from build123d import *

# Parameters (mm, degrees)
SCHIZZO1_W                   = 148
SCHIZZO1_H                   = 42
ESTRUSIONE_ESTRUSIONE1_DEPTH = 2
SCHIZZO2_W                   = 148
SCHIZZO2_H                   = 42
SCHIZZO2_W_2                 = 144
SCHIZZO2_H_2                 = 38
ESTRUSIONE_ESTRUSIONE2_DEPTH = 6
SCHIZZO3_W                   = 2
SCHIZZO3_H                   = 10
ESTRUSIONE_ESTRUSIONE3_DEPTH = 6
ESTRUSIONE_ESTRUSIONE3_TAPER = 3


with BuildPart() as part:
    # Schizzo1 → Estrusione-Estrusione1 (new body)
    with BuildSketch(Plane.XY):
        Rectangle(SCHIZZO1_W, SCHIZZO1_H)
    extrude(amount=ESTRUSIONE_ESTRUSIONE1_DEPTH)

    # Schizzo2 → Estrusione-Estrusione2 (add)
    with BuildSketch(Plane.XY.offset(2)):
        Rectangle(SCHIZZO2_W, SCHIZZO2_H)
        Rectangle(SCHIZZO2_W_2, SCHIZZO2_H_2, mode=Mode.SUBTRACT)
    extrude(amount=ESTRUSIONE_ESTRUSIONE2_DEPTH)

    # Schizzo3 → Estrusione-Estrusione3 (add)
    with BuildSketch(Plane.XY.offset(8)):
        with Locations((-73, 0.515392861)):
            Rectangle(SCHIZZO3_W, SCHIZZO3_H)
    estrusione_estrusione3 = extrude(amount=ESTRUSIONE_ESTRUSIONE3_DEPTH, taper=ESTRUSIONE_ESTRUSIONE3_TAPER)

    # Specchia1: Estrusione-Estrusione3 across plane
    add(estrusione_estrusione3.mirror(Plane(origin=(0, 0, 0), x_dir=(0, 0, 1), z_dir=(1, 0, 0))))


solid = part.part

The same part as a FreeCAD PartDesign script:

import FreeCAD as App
import Part
import Sketcher
from FreeCAD import Vector
Q = App.Units.Quantity


def add_polygon(sketch, points):
    """Adds a closed chain of lines whose ends are joined by coincident constraints."""
    first, n = sketch.GeometryCount, len(points)
    for a, b in zip(points, points[1:] + points[:1]):
        sketch.addGeometry(Part.LineSegment(App.Vector(*a, 0), App.Vector(*b, 0)), False)
    for i in range(n):
        sketch.addConstraint(Sketcher.Constraint("Coincident", first + i, 2, first + (i + 1) % n, 1))

doc = App.newDocument("Part")
body = doc.addObject("PartDesign::Body", "Body")

# Sketch on XY plane
sketch1 = doc.addObject("Sketcher::SketchObject", "Sketch")
body.addObject(sketch1)
sketch1.AttachmentSupport = (doc.XY_Plane, [""])
sketch1.MapMode = "FlatFace"
add_polygon(sketch1, [(-74, 21), (-74, -21), (74, -21), (74, 21)])  # lines 0-3
sketch1.addConstraint([
    Sketcher.Constraint("Vertical", 0),
    Sketcher.Constraint("Horizontal", 1),
    Sketcher.Constraint("Vertical", 2),
    Sketcher.Constraint("Horizontal", 3),
    Sketcher.Constraint("Symmetric", 0, 2, 2, 2, -1, 1),
    Sketcher.Constraint("DistanceX", 1, 1, 1, 2, Q("148 mm")),
    Sketcher.Constraint("DistanceY", 0, 2, 0, 1, Q("42 mm")),
])
pad1 = doc.addObject("PartDesign::Pad", "Pad")
body.addObject(pad1)
pad1.Profile = sketch1
pad1.Length = 2

# Sketch on XY plane
sketch2 = doc.addObject("Sketcher::SketchObject", "Sketch001")
body.addObject(sketch2)
sketch2.AttachmentSupport = (doc.XY_Plane, [""])
sketch2.MapMode = "FlatFace"
sketch2.AttachmentOffset = App.Placement(Vector(0, 0, 2), App.Rotation())
add_polygon(sketch2, [(-74, 21), (-74, -21), (74, -21), (74, 21)])  # lines 0-3
add_polygon(sketch2, [(72, -19), (-72, -19), (-72, 19), (72, 19)])  # lines 4-7
sketch2.addConstraint([
    Sketcher.Constraint("Vertical", 0),
    Sketcher.Constraint("Horizontal", 1),
    Sketcher.Constraint("Vertical", 2),
    Sketcher.Constraint("Horizontal", 3),
    Sketcher.Constraint("Horizontal", 4),
    Sketcher.Constraint("Vertical", 5),
    Sketcher.Constraint("Horizontal", 6),
    Sketcher.Constraint("Vertical", 7),
    Sketcher.Constraint("Symmetric", 0, 2, 2, 2, -1, 1),
    Sketcher.Constraint("Symmetric", 4, 2, 6, 2, -1, 1),
    Sketcher.Constraint("DistanceX", 1, 1, 1, 2, Q("148 mm")),
    Sketcher.Constraint("DistanceX", 4, 2, 4, 1, Q("144 mm")),
    Sketcher.Constraint("DistanceY", 0, 2, 0, 1, Q("42 mm")),
    Sketcher.Constraint("DistanceY", 5, 1, 5, 2, Q("38 mm")),
])
pad2 = doc.addObject("PartDesign::Pad", "Pad001")
body.addObject(pad2)
pad2.Profile = sketch2
pad2.Length = 6

# Sketch on XY plane
sketch3 = doc.addObject("Sketcher::SketchObject", "Sketch002")
body.addObject(sketch3)
sketch3.AttachmentSupport = (doc.XY_Plane, [""])
sketch3.MapMode = "FlatFace"
sketch3.AttachmentOffset = App.Placement(Vector(0, 0, 8), App.Rotation())
add_polygon(sketch3, [(-74, 5.515393), (-74, -4.484607), (-72, -4.484607), (-72, 5.515393)])  # lines 0-3
sketch3.addConstraint([
    Sketcher.Constraint("Vertical", 0),
    Sketcher.Constraint("Horizontal", 1),
    Sketcher.Constraint("Vertical", 2),
    Sketcher.Constraint("Horizontal", 3),
    Sketcher.Constraint("DistanceX", 1, 1, 1, 2, Q("2 mm")),
    Sketcher.Constraint("DistanceY", 0, 2, 0, 1, Q("10 mm")),
    Sketcher.Constraint("DistanceX", 0, 2, -1, 1, Q("74 mm")),
    Sketcher.Constraint("DistanceY", 0, 2, -1, 1, Q("4.484607 mm")),
])
pad3 = doc.addObject("PartDesign::Pad", "Pad002")
body.addObject(pad3)
pad3.Profile = sketch3
pad3.Length = 6
pad3.TaperAngle = -3
doc.recompute()

mirrored = doc.addObject("PartDesign::Mirrored", "Mirrored")
body.addObject(mirrored)
mirrored.Originals = [pad3]
mirrored.MirrorPlane = (doc.YZ_Plane, [""])
body.Tip = mirrored

doc.recompute()
